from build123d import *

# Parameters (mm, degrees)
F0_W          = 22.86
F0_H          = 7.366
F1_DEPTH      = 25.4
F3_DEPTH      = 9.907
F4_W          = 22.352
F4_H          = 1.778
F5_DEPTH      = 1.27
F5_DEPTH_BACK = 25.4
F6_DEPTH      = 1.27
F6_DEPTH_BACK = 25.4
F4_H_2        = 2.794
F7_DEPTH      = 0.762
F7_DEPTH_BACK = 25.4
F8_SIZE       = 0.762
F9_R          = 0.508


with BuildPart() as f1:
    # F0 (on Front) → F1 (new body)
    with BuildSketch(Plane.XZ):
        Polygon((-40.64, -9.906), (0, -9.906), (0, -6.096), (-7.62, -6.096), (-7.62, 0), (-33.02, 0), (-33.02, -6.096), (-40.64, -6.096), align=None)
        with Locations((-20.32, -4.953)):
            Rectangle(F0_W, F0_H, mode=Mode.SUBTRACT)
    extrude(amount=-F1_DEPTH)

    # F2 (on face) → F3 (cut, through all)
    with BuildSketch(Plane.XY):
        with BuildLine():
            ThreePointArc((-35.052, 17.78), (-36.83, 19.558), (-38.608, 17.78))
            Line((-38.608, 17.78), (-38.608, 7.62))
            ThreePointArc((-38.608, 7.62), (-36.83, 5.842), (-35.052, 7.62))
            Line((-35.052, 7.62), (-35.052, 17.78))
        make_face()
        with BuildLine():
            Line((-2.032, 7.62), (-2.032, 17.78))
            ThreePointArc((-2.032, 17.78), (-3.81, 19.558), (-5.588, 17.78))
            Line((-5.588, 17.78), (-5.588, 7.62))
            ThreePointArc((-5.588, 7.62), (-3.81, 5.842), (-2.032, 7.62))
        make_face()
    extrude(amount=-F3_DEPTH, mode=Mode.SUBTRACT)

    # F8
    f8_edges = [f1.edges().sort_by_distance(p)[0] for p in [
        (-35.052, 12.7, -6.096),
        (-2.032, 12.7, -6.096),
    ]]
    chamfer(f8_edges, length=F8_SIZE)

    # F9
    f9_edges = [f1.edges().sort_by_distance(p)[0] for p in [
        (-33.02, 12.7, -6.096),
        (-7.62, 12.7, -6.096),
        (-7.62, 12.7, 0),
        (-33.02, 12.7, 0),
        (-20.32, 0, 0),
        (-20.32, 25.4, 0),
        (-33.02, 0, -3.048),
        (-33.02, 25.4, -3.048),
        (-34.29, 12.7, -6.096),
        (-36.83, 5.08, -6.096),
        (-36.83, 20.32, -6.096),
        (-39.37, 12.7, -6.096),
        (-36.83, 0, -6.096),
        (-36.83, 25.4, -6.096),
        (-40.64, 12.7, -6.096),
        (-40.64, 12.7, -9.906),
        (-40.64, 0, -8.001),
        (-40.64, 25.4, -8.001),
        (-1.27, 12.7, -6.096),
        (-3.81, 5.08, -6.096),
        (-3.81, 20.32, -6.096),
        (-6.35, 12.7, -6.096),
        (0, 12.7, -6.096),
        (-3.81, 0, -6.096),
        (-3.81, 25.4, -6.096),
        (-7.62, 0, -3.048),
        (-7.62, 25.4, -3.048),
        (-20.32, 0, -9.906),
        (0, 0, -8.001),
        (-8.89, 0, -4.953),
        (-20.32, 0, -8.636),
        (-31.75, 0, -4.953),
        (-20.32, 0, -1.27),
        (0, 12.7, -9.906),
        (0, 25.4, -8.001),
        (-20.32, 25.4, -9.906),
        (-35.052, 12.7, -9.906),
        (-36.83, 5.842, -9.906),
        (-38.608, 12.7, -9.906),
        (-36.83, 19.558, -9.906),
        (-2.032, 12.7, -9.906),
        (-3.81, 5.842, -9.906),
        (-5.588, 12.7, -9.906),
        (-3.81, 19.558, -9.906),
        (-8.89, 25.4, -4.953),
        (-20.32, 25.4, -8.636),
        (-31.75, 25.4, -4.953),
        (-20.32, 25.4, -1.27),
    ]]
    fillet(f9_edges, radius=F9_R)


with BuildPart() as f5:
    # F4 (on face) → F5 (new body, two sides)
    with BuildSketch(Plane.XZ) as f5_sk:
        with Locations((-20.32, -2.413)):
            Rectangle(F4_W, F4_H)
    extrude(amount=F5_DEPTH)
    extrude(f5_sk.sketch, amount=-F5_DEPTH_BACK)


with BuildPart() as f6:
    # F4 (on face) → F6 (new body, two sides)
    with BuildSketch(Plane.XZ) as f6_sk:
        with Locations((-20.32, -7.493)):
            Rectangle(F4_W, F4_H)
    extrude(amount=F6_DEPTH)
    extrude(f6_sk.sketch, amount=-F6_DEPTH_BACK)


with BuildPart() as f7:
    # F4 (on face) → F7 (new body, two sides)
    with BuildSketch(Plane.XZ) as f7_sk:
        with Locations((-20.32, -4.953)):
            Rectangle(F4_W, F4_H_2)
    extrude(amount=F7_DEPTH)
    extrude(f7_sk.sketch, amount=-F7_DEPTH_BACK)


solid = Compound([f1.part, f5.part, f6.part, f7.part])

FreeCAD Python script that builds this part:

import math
import FreeCAD as App
import Part
import Sketcher
from FreeCAD import Vector
Q = App.Units.Quantity


def edges_at(feature, points):
    """Names of the edges that pass closest to the given points."""
    edges = feature.Shape.Edges
    near = lambda p: min(range(len(edges)), key=lambda i: edges[i].distToShape(Part.Vertex(*p))[0])
    return sorted({f"Edge{near(p) + 1}" for p in points})


def add_polygon(sketch, points):
    """Adds a closed chain of lines whose ends are joined by coincident constraints."""
    first, n = sketch.GeometryCount, len(points)
    for a, b in zip(points, points[1:] + points[:1]):
        sketch.addGeometry(Part.LineSegment(App.Vector(*a, 0), App.Vector(*b, 0)), False)
    for i in range(n):
        sketch.addConstraint(Sketcher.Constraint("Coincident", first + i, 2, first + (i + 1) % n, 1))

doc = App.newDocument("Part")
body = doc.addObject("PartDesign::Body", "Body")

# Sketch on XZ plane
sketch1 = body.newObject("Sketcher::SketchObject", "Sketch")
sketch1.AttachmentSupport = (doc.getObject("XZ_Plane"), [""])
sketch1.MapMode = "FlatFace"
add_polygon(sketch1, [(-40.6, -9.9), (0, -9.9), (0, -6.1), (-7.6, -6.1), (-7.6, 0), (-33, 0), (-33, -6.1), (-40.6, -6.1)])  # lines 0-7
add_polygon(sketch1, [(-8.9, -8.6), (-31.8, -8.6), (-31.8, -1.3), (-8.9, -1.3)])  # lines 8-11
sketch1.addConstraint(Sketcher.Constraint("Horizontal", 0))
sketch1.addConstraint(Sketcher.Constraint("Vertical", 1))
sketch1.addConstraint(Sketcher.Constraint("Horizontal", 2))
sketch1.addConstraint(Sketcher.Constraint("Vertical", 3))
sketch1.addConstraint(Sketcher.Constraint("Horizontal", 4))
sketch1.addConstraint(Sketcher.Constraint("Vertical", 5))
sketch1.addConstraint(Sketcher.Constraint("Horizontal", 6))
sketch1.addConstraint(Sketcher.Constraint("Vertical", 7))
sketch1.addConstraint(Sketcher.Constraint("Horizontal", 8))
sketch1.addConstraint(Sketcher.Constraint("Vertical", 9))
sketch1.addConstraint(Sketcher.Constraint("Horizontal", 10))
sketch1.addConstraint(Sketcher.Constraint("Vertical", 11))
sketch1.addConstraint(Sketcher.Constraint("PointOnObject", 0, 2, -2))
sketch1.addConstraint(Sketcher.Constraint("PointOnObject", 3, 2, -1))
sketch1.addConstraint(Sketcher.Constraint("Horizontal", 2, 2, 5, 2))
sketch1.addConstraint(Sketcher.Constraint("Equal", 2, 6))
sketch1.addConstraint(Sketcher.Constraint("DistanceX", 4, 2, 4, 1, Q("1 in")))
sketch1.addConstraint(Sketcher.Constraint("DistanceX", 0, 1, 0, 2, Q("1.6 in")))
sketch1.addConstraint(Sketcher.Constraint("DistanceX", 8, 2, 8, 1, Q("0.9 in")))
sketch1.addConstraint(Sketcher.Constraint("DistanceY", 1, 1, 1, 2, Q("0.15 in")))
sketch1.addConstraint(Sketcher.Constraint("DistanceY", 3, 1, 3, 2, Q("0.24 in")))
sketch1.addConstraint(Sketcher.Constraint("DistanceY", 9, 1, 9, 2, Q("0.29 in")))
sketch1.addConstraint(Sketcher.Constraint("DistanceY", 8, 2, 5, 2, Q("0.1 in")))
sketch1.addConstraint(Sketcher.Constraint("DistanceX", 8, 2, -1, 1, Q("1.25 in")))
pad1 = body.newObject("PartDesign::Pad", "Pad")
pad1.Profile = sketch1
pad1.Length = Q("1 in")
pad1.Reversed = True

# Sketch on XY plane
sketch2 = body.newObject("Sketcher::SketchObject", "Sketch001")
sketch2.AttachmentSupport = (doc.getObject("XY_Plane"), [""])
sketch2.MapMode = "FlatFace"
sketch2.addGeometry(Part.ArcOfCircle(Part.Circle(Vector(-36.8, 17.8, 0), Vector(0, 0, 1), 1.8), math.radians(0), math.radians(180)), False)
sketch2.addGeometry(Part.LineSegment(Vector(-38.6, 17.8, 0), Vector(-38.6, 7.6, 0)), False)
sketch2.addGeometry(Part.ArcOfCircle(Part.Circle(Vector(-36.8, 7.6, 0), Vector(0, 0, 1), 1.8), math.radians(180), math.radians(360)), False)
sketch2.addGeometry(Part.LineSegment(Vector(-35.1, 7.6, 0), Vector(-35.1, 17.8, 0)), False)
sketch2.addGeometry(Part.LineSegment(Vector(-2, 7.6, 0), Vector(-2, 17.8, 0)), False)
sketch2.addGeometry(Part.ArcOfCircle(Part.Circle(Vector(-3.8, 17.8, 0), Vector(0, 0, 1), 1.8), math.radians(0), math.radians(180)), False)
sketch2.addGeometry(Part.LineSegment(Vector(-5.6, 17.8, 0), Vector(-5.6, 7.6, 0)), False)
sketch2.addGeometry(Part.ArcOfCircle(Part.Circle(Vector(-3.8, 7.6, 0), Vector(0, 0, 1), 1.8), math.radians(180), math.radians(360)), False)
sketch2.addConstraint(Sketcher.Constraint("Tangent", 0, 2, 1, 1))
sketch2.addConstraint(Sketcher.Constraint("Tangent", 1, 2, 2, 1))
sketch2.addConstraint(Sketcher.Constraint("Tangent", 2, 2, 3, 1))
sketch2.addConstraint(Sketcher.Constraint("Tangent", 3, 2, 0, 1))
sketch2.addConstraint(Sketcher.Constraint("Tangent", 4, 2, 5, 1))
sketch2.addConstraint(Sketcher.Constraint("Tangent", 5, 2, 6, 1))
sketch2.addConstraint(Sketcher.Constraint("Tangent", 6, 2, 7, 1))
sketch2.addConstraint(Sketcher.Constraint("Tangent", 7, 2, 4, 1))
sketch2.addConstraint(Sketcher.Constraint("Vertical", 1))
sketch2.addConstraint(Sketcher.Constraint("Vertical", 3))
sketch2.addConstraint(Sketcher.Constraint("Vertical", 4))
sketch2.addConstraint(Sketcher.Constraint("Vertical", 6))
sketch2.addConstraint(Sketcher.Constraint("Equal", 2, 5))
sketch2.addConstraint(Sketcher.Constraint("Horizontal", 0, 3, 5, 3))
sketch2.addConstraint(Sketcher.Constraint("Horizontal", 2, 3, 7, 3))
sketch2.addConstraint(Sketcher.Constraint("Radius", 0, Q("0.07 in")))
sketch2.addConstraint(Sketcher.Constraint("DistanceY", 1, 2, 1, 1, Q("0.4 in")))
sketch2.addConstraint(Sketcher.Constraint("DistanceY", -1, 1, 0, 3, Q("0.7 in")))
sketch2.addConstraint(Sketcher.Constraint("DistanceX", 0, 3, 5, 3, Q("1.3 in")))
sketch2.addConstraint(Sketcher.Constraint("DistanceX", 0, 3, -1, 1, Q("1.45 in")))
pocket1 = body.newObject("PartDesign::Pocket", "Pocket")
pocket1.Profile = sketch2
pocket1.Type = "ThroughAll"
doc.recompute()

chamfer = body.newObject("PartDesign::Chamfer", "Chamfer")
chamfer.Base = (pocket1, edges_at(pocket1, [(-35.052, 12.7, -6.096), (-2.032, 12.7, -6.096)]))
chamfer.Size = Q("0.03 in")
doc.recompute()

fillet = body.newObject("PartDesign::Fillet", "Fillet")
fillet.Base = (chamfer, edges_at(chamfer, [
    (-33.02, 12.7, -6.096),
    (-7.62, 12.7, -6.096),
    (-7.62, 12.7, 0),
    (-33.02, 12.7, 0),
    (-20.32, 0, 0),
    (-20.32, 25.4, 0),
    (-33.02, 0, -3.048),
    (-33.02, 25.4, -3.048),
    (-34.29, 12.7, -6.096),
    (-36.83, 5.08, -6.096),
    (-36.83, 20.32, -6.096),
    (-39.37, 12.7, -6.096),
    (-36.83, 0, -6.096),
    (-36.83, 25.4, -6.096),
    (-40.64, 12.7, -6.096),
    (-40.64, 12.7, -9.906),
    (-40.64, 0, -8.001),
    (-40.64, 25.4, -8.001),
    (-1.27, 12.7, -6.096),
    (-3.81, 5.08, -6.096),
    (-3.81, 20.32, -6.096),
    (-6.35, 12.7, -6.096),
    (0, 12.7, -6.096),
    (-3.81, 0, -6.096),
    (-3.81, 25.4, -6.096),
    (-7.62, 0, -3.048),
    (-7.62, 25.4, -3.048),
    (-20.32, 0, -9.906),
    (0, 0, -8.001),
    (-8.89, 0, -4.953),
    (-20.32, 0, -8.636),
    (-31.75, 0, -4.953),
    (-20.32, 0, -1.27),
    (0, 12.7, -9.906),
    (0, 25.4, -8.001),
    (-20.32, 25.4, -9.906),
    (-35.052, 12.7, -9.906),
    (-36.83, 5.842, -9.906),
    (-38.608, 12.7, -9.906),
    (-36.83, 19.558, -9.906),
    (-2.032, 12.7, -9.906),
    (-3.81, 5.842, -9.906),
    (-5.588, 12.7, -9.906),
    (-3.81, 19.558, -9.906),
    (-8.89, 25.4, -4.953),
    (-20.32, 25.4, -8.636),
    (-31.75, 25.4, -4.953),
    (-20.32, 25.4, -1.27),
]))
fillet.Radius = Q("0.02 in")
body2 = doc.addObject("PartDesign::Body", "Body001")

# Sketch on XZ plane
sketch3 = body2.newObject("Sketcher::SketchObject", "Sketch002")
sketch3.AttachmentSupport = (doc.getObject("XZ_Plane001"), [""])
sketch3.MapMode = "FlatFace"
add_polygon(sketch3, [(-31.5, -1.5), (-31.5, -3.3), (-9.1, -3.3), (-9.1, -1.5)])  # lines 0-3
sketch3.addConstraint(Sketcher.Constraint("Vertical", 0))
sketch3.addConstraint(Sketcher.Constraint("Horizontal", 1))
sketch3.addConstraint(Sketcher.Constraint("Vertical", 2))
sketch3.addConstraint(Sketcher.Constraint("Horizontal", 3))
sketch3.addConstraint(Sketcher.Constraint("DistanceX", 1, 1, 1, 2, Q("0.88 in")))
sketch3.addConstraint(Sketcher.Constraint("DistanceY", 0, 2, 0, 1, Q("0.07 in")))
sketch3.addConstraint(Sketcher.Constraint("DistanceX", 0, 2, -1, 1, Q("1.24 in")))
sketch3.addConstraint(Sketcher.Constraint("DistanceY", 0, 2, -1, 1, Q("0.13 in")))
pad2 = body2.newObject("PartDesign::Pad", "Pad001")
pad2.Profile = sketch3
pad2.Type = "TwoLengths"
pad2.Length = Q("0.05 in")
pad2.Length2 = Q("1 in")
body3 = doc.addObject("PartDesign::Body", "Body002")

# Sketch on XZ plane
sketch4 = body3.newObject("Sketcher::SketchObject", "Sketch003")
sketch4.AttachmentSupport = (doc.getObject("XZ_Plane002"), [""])
sketch4.MapMode = "FlatFace"
add_polygon(sketch4, [(-31.5, -6.6), (-31.5, -8.4), (-9.1, -8.4), (-9.1, -6.6)])  # lines 0-3
sketch4.addConstraint(Sketcher.Constraint("Vertical", 0))
sketch4.addConstraint(Sketcher.Constraint("Horizontal", 1))
sketch4.addConstraint(Sketcher.Constraint("Vertical", 2))
sketch4.addConstraint(Sketcher.Constraint("Horizontal", 3))
sketch4.addConstraint(Sketcher.Constraint("DistanceX", 1, 1, 1, 2, Q("0.88 in")))
sketch4.addConstraint(Sketcher.Constraint("DistanceY", 0, 2, 0, 1, Q("0.07 in")))
sketch4.addConstraint(Sketcher.Constraint("DistanceX", 0, 2, -1, 1, Q("1.24 in")))
sketch4.addConstraint(Sketcher.Constraint("DistanceY", 0, 2, -1, 1, Q("0.33 in")))
pad3 = body3.newObject("PartDesign::Pad", "Pad002")
pad3.Profile = sketch4
pad3.Type = "TwoLengths"
pad3.Length = Q("0.05 in")
pad3.Length2 = Q("1 in")
body4 = doc.addObject("PartDesign::Body", "Body003")

# Sketch on XZ plane
sketch5 = body4.newObject("Sketcher::SketchObject", "Sketch004")
sketch5.AttachmentSupport = (doc.getObject("XZ_Plane003"), [""])
sketch5.MapMode = "FlatFace"
add_polygon(sketch5, [(-31.5, -3.6), (-31.5, -6.3), (-9.1, -6.3), (-9.1, -3.6)])  # lines 0-3
sketch5.addConstraint(Sketcher.Constraint("Vertical", 0))
sketch5.addConstraint(Sketcher.Constraint("Horizontal", 1))
sketch5.addConstraint(Sketcher.Constraint("Vertical", 2))
sketch5.addConstraint(Sketcher.Constraint("Horizontal", 3))
sketch5.addConstraint(Sketcher.Constraint("DistanceX", 1, 1, 1, 2, Q("0.88 in")))
sketch5.addConstraint(Sketcher.Constraint("DistanceY", 0, 2, 0, 1, Q("0.11 in")))
sketch5.addConstraint(Sketcher.Constraint("DistanceX", 0, 2, -1, 1, Q("1.24 in")))
sketch5.addConstraint(Sketcher.Constraint("DistanceY", 0, 2, -1, 1, Q("0.25 in")))
pad4 = body4.newObject("PartDesign::Pad", "Pad003")
pad4.Profile = sketch5
pad4.Type = "TwoLengths"
pad4.Length = Q("0.03 in")
pad4.Length2 = Q("1 in")

doc.recompute()
